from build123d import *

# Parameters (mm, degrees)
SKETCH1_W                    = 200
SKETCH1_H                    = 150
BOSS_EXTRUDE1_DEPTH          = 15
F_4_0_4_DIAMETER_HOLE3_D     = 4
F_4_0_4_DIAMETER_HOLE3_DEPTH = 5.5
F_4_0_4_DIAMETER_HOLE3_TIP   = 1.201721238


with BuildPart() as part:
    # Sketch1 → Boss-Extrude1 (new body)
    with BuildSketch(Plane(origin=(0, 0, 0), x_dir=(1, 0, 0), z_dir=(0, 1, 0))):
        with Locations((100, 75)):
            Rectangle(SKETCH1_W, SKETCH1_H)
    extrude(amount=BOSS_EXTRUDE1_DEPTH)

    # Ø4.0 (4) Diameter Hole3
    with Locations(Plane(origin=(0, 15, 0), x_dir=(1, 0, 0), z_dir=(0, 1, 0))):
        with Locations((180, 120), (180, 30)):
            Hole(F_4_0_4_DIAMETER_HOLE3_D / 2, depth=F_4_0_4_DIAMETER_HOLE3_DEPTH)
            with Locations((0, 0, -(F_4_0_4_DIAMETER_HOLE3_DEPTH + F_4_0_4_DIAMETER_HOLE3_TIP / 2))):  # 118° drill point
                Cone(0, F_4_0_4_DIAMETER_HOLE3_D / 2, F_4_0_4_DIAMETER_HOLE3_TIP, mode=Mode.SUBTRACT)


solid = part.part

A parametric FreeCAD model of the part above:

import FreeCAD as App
import Part
import Sketcher

doc = App.newDocument("Part")
body = doc.addObject("PartDesign::Body", "Body")

# Sketch on XZ plane
sketch1 = body.newObject("Sketcher::SketchObject", "Sketch")
sketch1.AttachmentSupport = (doc.getObject("XZ_Plane"), [""])
sketch1.MapMode = "FlatFace"
sketch1.addGeometry([
    Part.LineSegment(App.Vector(0, -150, 0), App.Vector(0, 0, 0)),
    Part.LineSegment(App.Vector(0, 0, 0), App.Vector(200, 0, 0)),
    Part.LineSegment(App.Vector(200, 0, 0), App.Vector(200, -150, 0)),
    Part.LineSegment(App.Vector(200, -150, 0), App.Vector(0, -150, 0)),
], False)
sketch1.addConstraint([
    Sketcher.Constraint("Coincident", 0, 2, 1, 1),
    Sketcher.Constraint("Coincident", 1, 2, 2, 1),
    Sketcher.Constraint("Coincident", 2, 2, 3, 1),
    Sketcher.Constraint("Coincident", 3, 2, 0, 1),
    Sketcher.Constraint("Vertical", 0),
    Sketcher.Constraint("Horizontal", 1),
    Sketcher.Constraint("Vertical", 2),
    Sketcher.Constraint("Horizontal", 3),
    Sketcher.Constraint("Coincident", 0, 2, -1, 1),
    Sketcher.Constraint("DistanceX", 1, 1, 1, 2, 200.0),
    Sketcher.Constraint("DistanceY", 0, 1, 0, 2, 150.0),
])
pad1 = body.newObject("PartDesign::Pad", "Pad")
pad1.Profile = sketch1
pad1.Length = 15
pad1.Reversed = True

# Sketch on XZ plane
sketch2 = body.newObject("Sketcher::SketchObject", "Sketch001")
sketch2.AttachmentSupport = (doc.getObject("XZ_Plane"), [""])
sketch2.MapMode = "FlatFace"
sketch2.AttachmentOffset = App.Placement(App.Vector(0, 0, -15), App.Rotation())
sketch2.addGeometry([
    Part.Circle(App.Vector(180, -120, 0), App.Vector(0, 0, 1), 2),
    Part.Circle(App.Vector(180, -30, 0), App.Vector(0, 0, 1), 2),
], False)
sketch2.addConstraint([
    Sketcher.Constraint("Equal", 0, 1),
    Sketcher.Constraint("Vertical", 0, 3, 1, 3),
    Sketcher.Constraint("Diameter", 0, 4.0),
    Sketcher.Constraint("DistanceX", -1, 1, 0, 3, 180.0),
    Sketcher.Constraint("DistanceY", 0, 3, -1, 1, 120.0),
    Sketcher.Constraint("DistanceY", 1, 3, -1, 1, 30.0),
])
doc.recompute()
hole = body.newObject("PartDesign::Hole", "Hole")
hole.Profile = sketch2
hole.ThreadType = "None"
hole.Diameter = 4
hole.DepthType = "Dimension"
hole.Depth = 5.5
hole.DrillPoint = "Angled"
hole.DrillPointAngle = 118
hole.Reversed = True

doc.recompute()
